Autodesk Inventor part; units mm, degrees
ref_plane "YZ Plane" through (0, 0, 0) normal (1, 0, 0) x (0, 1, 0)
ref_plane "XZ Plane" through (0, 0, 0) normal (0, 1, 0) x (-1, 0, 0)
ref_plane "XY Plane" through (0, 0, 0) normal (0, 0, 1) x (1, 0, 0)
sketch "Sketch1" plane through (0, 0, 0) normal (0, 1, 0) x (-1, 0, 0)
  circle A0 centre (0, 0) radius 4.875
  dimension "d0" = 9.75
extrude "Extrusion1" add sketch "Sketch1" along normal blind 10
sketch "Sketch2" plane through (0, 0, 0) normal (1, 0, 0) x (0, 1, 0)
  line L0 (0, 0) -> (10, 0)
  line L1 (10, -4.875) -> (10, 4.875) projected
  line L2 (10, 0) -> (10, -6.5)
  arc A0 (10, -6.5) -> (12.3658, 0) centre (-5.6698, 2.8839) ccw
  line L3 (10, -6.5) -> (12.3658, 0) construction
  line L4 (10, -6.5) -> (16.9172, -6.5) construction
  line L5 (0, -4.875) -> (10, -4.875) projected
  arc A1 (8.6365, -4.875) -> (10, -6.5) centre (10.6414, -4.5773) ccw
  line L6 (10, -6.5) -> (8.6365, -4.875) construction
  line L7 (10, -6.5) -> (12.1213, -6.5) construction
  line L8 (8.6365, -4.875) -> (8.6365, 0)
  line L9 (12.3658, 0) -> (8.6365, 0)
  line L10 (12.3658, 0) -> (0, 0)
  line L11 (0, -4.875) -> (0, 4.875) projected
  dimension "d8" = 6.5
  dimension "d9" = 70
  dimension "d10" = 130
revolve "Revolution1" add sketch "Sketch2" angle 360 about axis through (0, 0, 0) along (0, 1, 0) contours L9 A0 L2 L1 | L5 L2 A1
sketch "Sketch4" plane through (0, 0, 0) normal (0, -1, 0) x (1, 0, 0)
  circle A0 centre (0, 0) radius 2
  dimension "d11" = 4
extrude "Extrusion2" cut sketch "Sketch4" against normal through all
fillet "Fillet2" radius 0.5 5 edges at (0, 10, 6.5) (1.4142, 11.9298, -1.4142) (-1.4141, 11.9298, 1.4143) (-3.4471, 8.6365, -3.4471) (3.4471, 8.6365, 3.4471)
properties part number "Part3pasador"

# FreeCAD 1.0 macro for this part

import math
import FreeCAD as App
import Part
import Sketcher
from FreeCAD import Vector
Q = App.Units.Quantity


def edges_at(feature, points):
    """Names of the edges that pass closest to the given points."""
    edges = feature.Shape.Edges
    near = lambda p: min(range(len(edges)), key=lambda i: edges[i].distToShape(Part.Vertex(*p))[0])
    return sorted({f"Edge{near(p) + 1}" for p in points})

doc = App.newDocument("Part")
body = doc.addObject("PartDesign::Body", "Body")

# Sketch on XZ plane
sketch1 = body.newObject("Sketcher::SketchObject", "Sketch")
sketch1.AttachmentSupport = (doc.getObject("XZ_Plane"), [""])
sketch1.MapMode = "FlatFace"
sketch1.addGeometry(Part.Circle(Vector(0, 0, 0), Vector(0, 0, 1), 4.875), False)
sketch1.addConstraint(Sketcher.Constraint("Coincident", 0, 3, -1, 1))
sketch1.addConstraint(Sketcher.Constraint("Diameter", 0, Q("9.75 mm")))
pad1 = body.newObject("PartDesign::Pad", "Pad")
pad1.Profile = sketch1
pad1.Length = 10
pad1.Reversed = True

# Sketch on YZ plane
sketch2 = body.newObject("Sketcher::SketchObject", "Sketch001")
sketch2.AttachmentSupport = (doc.getObject("YZ_Plane"), [""])
sketch2.MapMode = "FlatFace"
sketch2.addGeometry(Part.LineSegment(Vector(12.3658, 0, 0), Vector(10, 0, 0)), False)
sketch2.addGeometry(Part.LineSegment(Vector(10, 0, 0), Vector(10, -4.875, 0)), False)
sketch2.addGeometry(Part.LineSegment(Vector(10, -4.875, 0), Vector(8.6365, -4.875, 0)), False)
sketch2.addGeometry(Part.ArcOfCircle(Part.Circle(Vector(10.6414, -4.5773, 0), Vector(0, 0, 1), 2.026882), math.radians(-171.554078), math.radians(-108.448358)), False)
sketch2.addGeometry(Part.ArcOfCircle(Part.Circle(Vector(-5.6698, 2.8839, 0), Vector(0, 0, 1), 18.264726), math.radians(-30.915392), math.radians(-9.084714)), False)
sketch2.addConstraint(Sketcher.Constraint("Coincident", 0, 2, 1, 1))
sketch2.addConstraint(Sketcher.Constraint("Coincident", 1, 2, 2, 1))
sketch2.addConstraint(Sketcher.Constraint("Coincident", 2, 2, 3, 1))
sketch2.addConstraint(Sketcher.Constraint("Coincident", 3, 2, 4, 1))
sketch2.addConstraint(Sketcher.Constraint("Coincident", 4, 2, 0, 1))
sketch2.addConstraint(Sketcher.Constraint("Horizontal", 0))
sketch2.addConstraint(Sketcher.Constraint("Vertical", 1))
sketch2.addConstraint(Sketcher.Constraint("Horizontal", 2))
sketch2.addConstraint(Sketcher.Constraint("PointOnObject", 0, 2, -1))
sketch2.addConstraint(Sketcher.Constraint("Vertical", 1, 2, 3, 2))
sketch2.addConstraint(Sketcher.Constraint("DistanceY", 3, 2, -1, 1, Q("6.5 mm")))
sketch2.addConstraint(Sketcher.Constraint("DistanceX", -1, 1, 0, 2, Q("10 mm")))
sketch2.addConstraint(Sketcher.Constraint("Radius", 3, Q("2.027 mm")))
sketch2.addConstraint(Sketcher.Constraint("Radius", 4, Q("18.2647 mm")))
sketch2.addConstraint(Sketcher.Constraint("DistanceY", 1, 2, 1, 1, Q("4.875 mm")))
sketch2.addConstraint(Sketcher.Constraint("DistanceX", 0, 2, 0, 1, Q("2.3658 mm")))
sketch2.addConstraint(Sketcher.Constraint("DistanceX", 2, 2, 2, 1, Q("1.3635 mm")))
revolution = body.newObject("PartDesign::Revolution", "Revolution")
revolution.Profile = sketch2
revolution.ReferenceAxis = (sketch2, ["H_Axis"])
revolution.Angle = 360

# Sketch on XZ plane
sketch3 = body.newObject("Sketcher::SketchObject", "Sketch002")
sketch3.AttachmentSupport = (doc.getObject("XZ_Plane"), [""])
sketch3.MapMode = "FlatFace"
sketch3.addGeometry(Part.Circle(Vector(0, 0, 0), Vector(0, 0, 1), 2), False)
sketch3.addConstraint(Sketcher.Constraint("Coincident", 0, 3, -1, 1))
sketch3.addConstraint(Sketcher.Constraint("Diameter", 0, Q("4 mm")))
pocket1 = body.newObject("PartDesign::Pocket", "Pocket")
pocket1.Profile = sketch3
pocket1.Type = "ThroughAll"
doc.recompute()

fillet = body.newObject("PartDesign::Fillet", "Fillet")
fillet.Base = (pocket1, edges_at(pocket1, [
    (0, 10, 6.5),
    (1.414, 11.93, -1.414),
    (-1.414, 11.93, 1.414),
    (-3.447, 8.636, -3.447),
    (3.447, 8.636, 3.447),
]))
fillet.Radius = 0.5

doc.recompute()
